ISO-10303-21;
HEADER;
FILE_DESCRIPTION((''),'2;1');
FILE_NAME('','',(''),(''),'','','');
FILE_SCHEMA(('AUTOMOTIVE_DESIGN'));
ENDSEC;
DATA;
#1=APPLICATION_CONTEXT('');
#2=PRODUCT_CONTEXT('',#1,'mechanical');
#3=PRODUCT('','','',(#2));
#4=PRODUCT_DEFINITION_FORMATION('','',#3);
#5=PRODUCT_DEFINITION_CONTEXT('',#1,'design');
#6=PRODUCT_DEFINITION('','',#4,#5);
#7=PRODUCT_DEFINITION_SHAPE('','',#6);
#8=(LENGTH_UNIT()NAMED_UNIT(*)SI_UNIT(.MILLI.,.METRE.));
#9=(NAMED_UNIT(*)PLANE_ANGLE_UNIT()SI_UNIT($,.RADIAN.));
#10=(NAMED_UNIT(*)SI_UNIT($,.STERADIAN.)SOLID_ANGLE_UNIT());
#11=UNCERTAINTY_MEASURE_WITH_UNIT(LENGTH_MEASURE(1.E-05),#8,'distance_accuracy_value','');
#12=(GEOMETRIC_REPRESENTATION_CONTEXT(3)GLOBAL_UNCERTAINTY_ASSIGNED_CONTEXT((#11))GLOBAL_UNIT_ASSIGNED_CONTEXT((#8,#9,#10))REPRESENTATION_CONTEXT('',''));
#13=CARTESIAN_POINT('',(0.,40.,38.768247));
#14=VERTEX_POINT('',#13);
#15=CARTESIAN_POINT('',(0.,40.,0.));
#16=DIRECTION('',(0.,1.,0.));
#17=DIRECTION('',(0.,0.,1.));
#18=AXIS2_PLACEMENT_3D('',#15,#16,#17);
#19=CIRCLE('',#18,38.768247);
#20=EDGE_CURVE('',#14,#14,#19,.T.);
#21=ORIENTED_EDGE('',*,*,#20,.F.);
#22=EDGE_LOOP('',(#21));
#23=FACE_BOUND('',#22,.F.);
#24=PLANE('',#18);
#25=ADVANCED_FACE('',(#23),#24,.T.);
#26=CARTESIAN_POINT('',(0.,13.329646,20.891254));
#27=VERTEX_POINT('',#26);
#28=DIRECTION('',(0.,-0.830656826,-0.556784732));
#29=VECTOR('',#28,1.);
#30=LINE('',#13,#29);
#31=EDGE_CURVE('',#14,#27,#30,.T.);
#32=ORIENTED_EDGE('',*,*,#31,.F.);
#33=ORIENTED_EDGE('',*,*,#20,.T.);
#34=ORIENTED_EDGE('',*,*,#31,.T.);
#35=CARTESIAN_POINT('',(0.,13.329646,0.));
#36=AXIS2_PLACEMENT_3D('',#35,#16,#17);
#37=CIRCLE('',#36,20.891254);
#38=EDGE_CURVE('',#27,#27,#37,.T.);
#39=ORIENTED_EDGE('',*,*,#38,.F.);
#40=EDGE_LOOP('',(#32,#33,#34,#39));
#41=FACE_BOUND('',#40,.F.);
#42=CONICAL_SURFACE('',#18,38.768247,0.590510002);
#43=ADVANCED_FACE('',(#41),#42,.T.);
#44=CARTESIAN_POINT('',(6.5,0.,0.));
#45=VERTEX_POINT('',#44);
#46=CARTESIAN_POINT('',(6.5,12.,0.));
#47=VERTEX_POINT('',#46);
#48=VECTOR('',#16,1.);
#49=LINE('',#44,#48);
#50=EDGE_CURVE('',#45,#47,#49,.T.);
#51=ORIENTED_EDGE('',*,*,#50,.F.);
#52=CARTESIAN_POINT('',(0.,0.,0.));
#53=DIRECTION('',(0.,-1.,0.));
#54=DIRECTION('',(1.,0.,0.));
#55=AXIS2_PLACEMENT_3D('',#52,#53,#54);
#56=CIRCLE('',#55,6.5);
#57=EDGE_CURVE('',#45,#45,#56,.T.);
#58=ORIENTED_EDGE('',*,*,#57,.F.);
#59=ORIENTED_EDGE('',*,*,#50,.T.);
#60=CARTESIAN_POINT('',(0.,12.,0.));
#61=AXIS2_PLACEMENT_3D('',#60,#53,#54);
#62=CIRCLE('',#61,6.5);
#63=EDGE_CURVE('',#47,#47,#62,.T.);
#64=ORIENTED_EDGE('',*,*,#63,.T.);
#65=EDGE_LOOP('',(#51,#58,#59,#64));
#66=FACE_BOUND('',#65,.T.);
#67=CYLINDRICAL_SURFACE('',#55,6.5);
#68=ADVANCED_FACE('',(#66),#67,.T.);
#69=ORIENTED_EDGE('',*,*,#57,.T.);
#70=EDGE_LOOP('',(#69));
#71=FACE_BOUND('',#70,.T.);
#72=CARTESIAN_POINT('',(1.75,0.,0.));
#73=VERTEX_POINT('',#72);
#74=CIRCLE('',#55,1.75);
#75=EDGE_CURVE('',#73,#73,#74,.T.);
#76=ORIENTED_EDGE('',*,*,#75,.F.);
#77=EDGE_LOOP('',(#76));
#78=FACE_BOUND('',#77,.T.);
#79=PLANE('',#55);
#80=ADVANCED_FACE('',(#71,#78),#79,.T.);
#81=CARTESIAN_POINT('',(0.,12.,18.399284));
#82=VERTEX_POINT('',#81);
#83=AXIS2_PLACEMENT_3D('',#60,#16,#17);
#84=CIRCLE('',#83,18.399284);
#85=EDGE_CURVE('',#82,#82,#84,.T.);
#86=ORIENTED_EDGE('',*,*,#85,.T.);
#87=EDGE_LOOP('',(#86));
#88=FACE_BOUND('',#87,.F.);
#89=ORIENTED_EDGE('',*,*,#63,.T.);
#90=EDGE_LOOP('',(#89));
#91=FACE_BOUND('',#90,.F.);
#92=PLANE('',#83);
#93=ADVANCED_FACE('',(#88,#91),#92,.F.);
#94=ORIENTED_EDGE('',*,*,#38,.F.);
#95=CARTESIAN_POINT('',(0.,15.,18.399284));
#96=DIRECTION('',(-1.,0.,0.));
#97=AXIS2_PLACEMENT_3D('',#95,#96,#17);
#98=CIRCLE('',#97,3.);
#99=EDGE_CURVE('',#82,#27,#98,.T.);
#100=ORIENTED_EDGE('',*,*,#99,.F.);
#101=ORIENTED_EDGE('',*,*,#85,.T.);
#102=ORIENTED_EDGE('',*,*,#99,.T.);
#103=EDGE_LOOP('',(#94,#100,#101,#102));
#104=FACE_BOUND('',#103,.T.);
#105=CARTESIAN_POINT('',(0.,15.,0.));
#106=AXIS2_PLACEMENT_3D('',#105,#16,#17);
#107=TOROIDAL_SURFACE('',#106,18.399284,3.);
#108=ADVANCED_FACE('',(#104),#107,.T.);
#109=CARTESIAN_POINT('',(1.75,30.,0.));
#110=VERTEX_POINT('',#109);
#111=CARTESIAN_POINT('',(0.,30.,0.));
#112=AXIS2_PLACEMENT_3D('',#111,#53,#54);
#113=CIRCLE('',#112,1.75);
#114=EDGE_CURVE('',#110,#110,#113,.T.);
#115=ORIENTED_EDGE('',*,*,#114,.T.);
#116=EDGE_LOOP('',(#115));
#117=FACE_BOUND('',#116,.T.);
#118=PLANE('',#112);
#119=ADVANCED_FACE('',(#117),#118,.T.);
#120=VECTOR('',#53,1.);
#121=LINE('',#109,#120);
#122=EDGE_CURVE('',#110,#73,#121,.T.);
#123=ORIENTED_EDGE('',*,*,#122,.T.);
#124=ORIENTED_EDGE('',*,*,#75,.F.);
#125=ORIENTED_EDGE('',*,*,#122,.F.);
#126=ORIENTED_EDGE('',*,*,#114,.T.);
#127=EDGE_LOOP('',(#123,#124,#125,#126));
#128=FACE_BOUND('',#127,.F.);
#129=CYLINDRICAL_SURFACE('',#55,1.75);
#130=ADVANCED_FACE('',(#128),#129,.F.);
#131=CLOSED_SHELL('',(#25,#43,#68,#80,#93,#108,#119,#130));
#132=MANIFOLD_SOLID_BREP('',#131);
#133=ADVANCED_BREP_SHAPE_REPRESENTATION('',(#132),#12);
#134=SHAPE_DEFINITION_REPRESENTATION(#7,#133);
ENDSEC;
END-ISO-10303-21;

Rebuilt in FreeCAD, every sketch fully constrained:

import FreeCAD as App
import Part
import Sketcher

V = App.Vector
Q = App.Units.Quantity


def edges_at(feature, points):
    """Names of the edges that pass closest to the given points."""
    edges = feature.Shape.Edges
    near = lambda p: min(range(len(edges)), key=lambda i: edges[i].distToShape(Part.Vertex(*p))[0])
    return sorted({f"Edge{near(p) + 1}" for p in points})

doc = App.newDocument("Part")
params = doc.addObject("Spreadsheet::Sheet", "Params")
for row, (alias, value) in enumerate([
    ("sketch1_width", "28 mm"),
    ("sketch1_height", "20 mm"),
    ("revolution_angle", "360 deg"),
    ("sketch2_diameter", "13 mm"),
    ("sketch2_diameter2", "3.5 mm"),
    ("pad1_length", "20 mm"),
    ("sketch3_diameter", "3.5 mm"),
    ("pocket1_length", "30 mm"),
    ("fillet_radius", "3 mm"),
], start=1):
    params.set(f"A{row}", alias)
    params.set(f"B{row}", "=" + value)
    params.setAlias(f"B{row}", alias)

body = doc.addObject("PartDesign::Body", "Body")

# Sketch on YZ plane
sketch1 = body.newObject("Sketcher::SketchObject", "Sketch")
sketch1.AttachmentSupport = (doc.getObject("YZ_Plane"), [""])
sketch1.MapMode = "FlatFace"
sketch1.addGeometry([
    Part.LineSegment(V(12, 20, 0), V(12, 0, 0)),
    Part.LineSegment(V(12, 0, 0), V(40, 0, 0)),
    Part.LineSegment(V(40, 0, 0), V(40, 39, 0)),
    Part.LineSegment(V(40, 39, 0), V(12, 20, 0)),
], False)
sketch1.addConstraint([
    Sketcher.Constraint("Coincident", 0, 2, 1, 1),
    Sketcher.Constraint("Coincident", 1, 2, 2, 1),
    Sketcher.Constraint("Coincident", 2, 2, 3, 1),
    Sketcher.Constraint("Coincident", 3, 2, 0, 1),
    Sketcher.Constraint("Vertical", 0),
    Sketcher.Constraint("Horizontal", 1),
    Sketcher.Constraint("Vertical", 2),
    Sketcher.Constraint("PointOnObject", 0, 2, -1),
    Sketcher.Constraint("DistanceX", 1, 1, 1, 2, Q("28 mm")),
    Sketcher.Constraint("DistanceY", 0, 2, 0, 1, Q("20 mm")),
    Sketcher.Constraint("DistanceX", -1, 1, 0, 2, Q("12 mm")),
    Sketcher.Constraint("DistanceY", 2, 1, 2, 2, Q("38.768247 mm")),
])
sketch1.setExpression("Constraints[8]", "Params.sketch1_width")
sketch1.setExpression("Constraints[9]", "Params.sketch1_height")
revolution = body.newObject("PartDesign::Revolution", "Revolution")
revolution.Profile = sketch1
revolution.ReferenceAxis = (sketch1, ["H_Axis"])
revolution.setExpression("Angle", "Params.revolution_angle")

# Sketch on XZ plane
sketch2 = body.newObject("Sketcher::SketchObject", "Sketch001")
sketch2.AttachmentSupport = (doc.getObject("XZ_Plane"), [""])
sketch2.MapMode = "FlatFace"
sketch2.addGeometry([
    Part.Circle(V(0, 0, 0), V(0, 0, 1), 6.5),
    Part.Circle(V(0, 0, 0), V(0, 0, 1), 1.8),
], False)
sketch2.addConstraint([
    Sketcher.Constraint("Coincident", 0, 3, -1, 1),
    Sketcher.Constraint("Coincident", 1, 3, -1, 1),
    Sketcher.Constraint("Diameter", 0, Q("13 mm")),
    Sketcher.Constraint("Diameter", 1, Q("3.5 mm")),
])
sketch2.setExpression("Constraints[2]", "Params.sketch2_diameter")
sketch2.setExpression("Constraints[3]", "Params.sketch2_diameter2")
pad1 = body.newObject("PartDesign::Pad", "Pad")
pad1.Profile = sketch2
pad1.setExpression("Length", "Params.pad1_length")
pad1.Reversed = True

# Sketch on XZ plane
sketch3 = body.newObject("Sketcher::SketchObject", "Sketch002")
sketch3.AttachmentSupport = (doc.getObject("XZ_Plane"), [""])
sketch3.MapMode = "FlatFace"
sketch3.addGeometry(Part.Circle(V(0, 0, 0), V(0, 0, 1), 1.8), False)
sketch3.addConstraint([
    Sketcher.Constraint("Coincident", 0, 3, -1, 1),
    Sketcher.Constraint("Diameter", 0, Q("3.5 mm")),
])
sketch3.setExpression("Constraints[1]", "Params.sketch3_diameter")
pocket1 = body.newObject("PartDesign::Pocket", "Pocket")
pocket1.Profile = sketch3
pocket1.setExpression("Length", "Params.pocket1_length")
doc.recompute()

fillet = body.newObject("PartDesign::Fillet", "Fillet")
fillet.Base = (pocket1, edges_at(pocket1, [(0, 12, -20)]))
fillet.setExpression("Radius", "Params.fillet_radius")

doc.recompute()
